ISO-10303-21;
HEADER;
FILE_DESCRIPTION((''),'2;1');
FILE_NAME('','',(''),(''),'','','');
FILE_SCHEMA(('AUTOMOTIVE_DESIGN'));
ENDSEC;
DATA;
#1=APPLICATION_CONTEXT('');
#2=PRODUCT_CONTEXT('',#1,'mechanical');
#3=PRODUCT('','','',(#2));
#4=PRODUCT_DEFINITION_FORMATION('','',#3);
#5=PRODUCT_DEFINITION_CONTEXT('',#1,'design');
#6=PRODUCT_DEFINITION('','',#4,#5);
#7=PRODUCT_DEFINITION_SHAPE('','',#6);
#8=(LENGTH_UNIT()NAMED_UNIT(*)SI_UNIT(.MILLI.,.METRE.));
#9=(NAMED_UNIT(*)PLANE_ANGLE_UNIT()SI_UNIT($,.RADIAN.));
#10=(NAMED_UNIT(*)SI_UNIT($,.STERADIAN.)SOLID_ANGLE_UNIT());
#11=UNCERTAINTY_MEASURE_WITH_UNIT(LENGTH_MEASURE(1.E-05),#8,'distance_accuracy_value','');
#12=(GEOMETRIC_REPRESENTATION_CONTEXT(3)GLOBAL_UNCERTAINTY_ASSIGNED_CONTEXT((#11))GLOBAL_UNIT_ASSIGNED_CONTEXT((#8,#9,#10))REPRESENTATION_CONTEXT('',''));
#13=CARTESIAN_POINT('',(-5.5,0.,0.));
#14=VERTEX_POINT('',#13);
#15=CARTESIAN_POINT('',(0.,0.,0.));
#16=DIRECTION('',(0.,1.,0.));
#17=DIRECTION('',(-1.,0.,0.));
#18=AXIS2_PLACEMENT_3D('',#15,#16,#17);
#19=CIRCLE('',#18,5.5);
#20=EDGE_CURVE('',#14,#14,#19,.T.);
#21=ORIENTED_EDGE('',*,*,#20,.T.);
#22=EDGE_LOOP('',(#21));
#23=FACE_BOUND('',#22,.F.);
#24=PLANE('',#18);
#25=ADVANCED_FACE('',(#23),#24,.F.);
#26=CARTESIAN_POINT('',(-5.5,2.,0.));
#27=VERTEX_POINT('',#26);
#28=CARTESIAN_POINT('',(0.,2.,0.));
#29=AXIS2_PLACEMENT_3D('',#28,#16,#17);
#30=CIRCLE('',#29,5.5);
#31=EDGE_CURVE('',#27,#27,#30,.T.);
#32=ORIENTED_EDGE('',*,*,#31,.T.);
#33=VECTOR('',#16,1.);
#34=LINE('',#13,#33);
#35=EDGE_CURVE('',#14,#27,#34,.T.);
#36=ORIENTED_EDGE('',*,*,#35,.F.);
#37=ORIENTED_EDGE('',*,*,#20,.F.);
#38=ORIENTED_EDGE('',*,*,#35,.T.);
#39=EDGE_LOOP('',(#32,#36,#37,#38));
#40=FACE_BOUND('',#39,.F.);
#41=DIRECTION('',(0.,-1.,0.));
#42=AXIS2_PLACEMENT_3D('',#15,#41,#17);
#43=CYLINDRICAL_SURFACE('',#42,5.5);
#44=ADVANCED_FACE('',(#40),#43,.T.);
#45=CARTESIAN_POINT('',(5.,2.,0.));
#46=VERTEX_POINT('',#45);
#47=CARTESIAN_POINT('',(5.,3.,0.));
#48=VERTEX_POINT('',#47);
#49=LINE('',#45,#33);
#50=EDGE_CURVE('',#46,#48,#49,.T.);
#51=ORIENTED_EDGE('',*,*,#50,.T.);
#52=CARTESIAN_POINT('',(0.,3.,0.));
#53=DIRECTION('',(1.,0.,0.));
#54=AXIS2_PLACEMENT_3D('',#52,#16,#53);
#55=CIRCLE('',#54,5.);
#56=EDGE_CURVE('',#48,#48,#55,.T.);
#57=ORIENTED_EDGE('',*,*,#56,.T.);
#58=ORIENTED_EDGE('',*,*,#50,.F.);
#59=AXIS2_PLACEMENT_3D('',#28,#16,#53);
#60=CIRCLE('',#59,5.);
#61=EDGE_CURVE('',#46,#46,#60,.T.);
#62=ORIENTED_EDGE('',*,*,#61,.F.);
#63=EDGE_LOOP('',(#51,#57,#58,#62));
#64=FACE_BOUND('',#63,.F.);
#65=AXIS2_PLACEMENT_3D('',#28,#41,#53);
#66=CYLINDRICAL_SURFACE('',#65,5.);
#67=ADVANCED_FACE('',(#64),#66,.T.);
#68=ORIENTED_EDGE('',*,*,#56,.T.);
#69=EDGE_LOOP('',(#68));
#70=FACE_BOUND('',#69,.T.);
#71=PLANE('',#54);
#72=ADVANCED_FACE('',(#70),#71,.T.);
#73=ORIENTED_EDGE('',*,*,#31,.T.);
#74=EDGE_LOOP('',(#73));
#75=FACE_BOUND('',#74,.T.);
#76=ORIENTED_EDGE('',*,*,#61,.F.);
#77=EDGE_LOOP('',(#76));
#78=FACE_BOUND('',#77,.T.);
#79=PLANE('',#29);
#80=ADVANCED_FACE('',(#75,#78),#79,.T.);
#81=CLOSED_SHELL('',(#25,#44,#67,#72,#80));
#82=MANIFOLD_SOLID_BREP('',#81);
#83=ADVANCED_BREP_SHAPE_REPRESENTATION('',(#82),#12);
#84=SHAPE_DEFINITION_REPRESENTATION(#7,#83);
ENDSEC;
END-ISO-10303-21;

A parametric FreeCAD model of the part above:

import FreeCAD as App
import Part
import Sketcher
from FreeCAD import Vector

doc = App.newDocument("Part")
body = doc.addObject("PartDesign::Body", "Body")

sketch1 = doc.addObject("Sketcher::SketchObject", "Sketch")
body.addObject(sketch1)
sketch1.AttachmentSupport = (doc.XZ_Plane, [""])
sketch1.MapMode = "FlatFace"
sketch1.addGeometry(Part.Circle(Vector(0, 0, 0), Vector(0, 0, 1), 6), False)
sketch1.addConstraint(Sketcher.Constraint("Coincident", 0, 3, -1, 1))
sketch1.addConstraint(Sketcher.Constraint("Diameter", 0, 11.0))
pad1 = doc.addObject("PartDesign::Pad", "Pad")
body.addObject(pad1)
pad1.Profile = sketch1
pad1.Length = 2
pad1.Reversed = True

sketch2 = doc.addObject("Sketcher::SketchObject", "Sketch001")
body.addObject(sketch2)
sketch2.AttachmentSupport = (doc.XZ_Plane, [""])
sketch2.MapMode = "FlatFace"
sketch2.AttachmentOffset = App.Placement(Vector(0, 0, -2), App.Rotation())
sketch2.addGeometry(Part.Circle(Vector(0, 0, 0), Vector(0, 0, 1), 5), False)
sketch2.addConstraint(Sketcher.Constraint("Coincident", 0, 3, -1, 1))
sketch2.addConstraint(Sketcher.Constraint("Diameter", 0, 10.0))
pad2 = doc.addObject("PartDesign::Pad", "Pad001")
body.addObject(pad2)
pad2.Profile = sketch2
pad2.Length = 1
pad2.Reversed = True

doc.recompute()
